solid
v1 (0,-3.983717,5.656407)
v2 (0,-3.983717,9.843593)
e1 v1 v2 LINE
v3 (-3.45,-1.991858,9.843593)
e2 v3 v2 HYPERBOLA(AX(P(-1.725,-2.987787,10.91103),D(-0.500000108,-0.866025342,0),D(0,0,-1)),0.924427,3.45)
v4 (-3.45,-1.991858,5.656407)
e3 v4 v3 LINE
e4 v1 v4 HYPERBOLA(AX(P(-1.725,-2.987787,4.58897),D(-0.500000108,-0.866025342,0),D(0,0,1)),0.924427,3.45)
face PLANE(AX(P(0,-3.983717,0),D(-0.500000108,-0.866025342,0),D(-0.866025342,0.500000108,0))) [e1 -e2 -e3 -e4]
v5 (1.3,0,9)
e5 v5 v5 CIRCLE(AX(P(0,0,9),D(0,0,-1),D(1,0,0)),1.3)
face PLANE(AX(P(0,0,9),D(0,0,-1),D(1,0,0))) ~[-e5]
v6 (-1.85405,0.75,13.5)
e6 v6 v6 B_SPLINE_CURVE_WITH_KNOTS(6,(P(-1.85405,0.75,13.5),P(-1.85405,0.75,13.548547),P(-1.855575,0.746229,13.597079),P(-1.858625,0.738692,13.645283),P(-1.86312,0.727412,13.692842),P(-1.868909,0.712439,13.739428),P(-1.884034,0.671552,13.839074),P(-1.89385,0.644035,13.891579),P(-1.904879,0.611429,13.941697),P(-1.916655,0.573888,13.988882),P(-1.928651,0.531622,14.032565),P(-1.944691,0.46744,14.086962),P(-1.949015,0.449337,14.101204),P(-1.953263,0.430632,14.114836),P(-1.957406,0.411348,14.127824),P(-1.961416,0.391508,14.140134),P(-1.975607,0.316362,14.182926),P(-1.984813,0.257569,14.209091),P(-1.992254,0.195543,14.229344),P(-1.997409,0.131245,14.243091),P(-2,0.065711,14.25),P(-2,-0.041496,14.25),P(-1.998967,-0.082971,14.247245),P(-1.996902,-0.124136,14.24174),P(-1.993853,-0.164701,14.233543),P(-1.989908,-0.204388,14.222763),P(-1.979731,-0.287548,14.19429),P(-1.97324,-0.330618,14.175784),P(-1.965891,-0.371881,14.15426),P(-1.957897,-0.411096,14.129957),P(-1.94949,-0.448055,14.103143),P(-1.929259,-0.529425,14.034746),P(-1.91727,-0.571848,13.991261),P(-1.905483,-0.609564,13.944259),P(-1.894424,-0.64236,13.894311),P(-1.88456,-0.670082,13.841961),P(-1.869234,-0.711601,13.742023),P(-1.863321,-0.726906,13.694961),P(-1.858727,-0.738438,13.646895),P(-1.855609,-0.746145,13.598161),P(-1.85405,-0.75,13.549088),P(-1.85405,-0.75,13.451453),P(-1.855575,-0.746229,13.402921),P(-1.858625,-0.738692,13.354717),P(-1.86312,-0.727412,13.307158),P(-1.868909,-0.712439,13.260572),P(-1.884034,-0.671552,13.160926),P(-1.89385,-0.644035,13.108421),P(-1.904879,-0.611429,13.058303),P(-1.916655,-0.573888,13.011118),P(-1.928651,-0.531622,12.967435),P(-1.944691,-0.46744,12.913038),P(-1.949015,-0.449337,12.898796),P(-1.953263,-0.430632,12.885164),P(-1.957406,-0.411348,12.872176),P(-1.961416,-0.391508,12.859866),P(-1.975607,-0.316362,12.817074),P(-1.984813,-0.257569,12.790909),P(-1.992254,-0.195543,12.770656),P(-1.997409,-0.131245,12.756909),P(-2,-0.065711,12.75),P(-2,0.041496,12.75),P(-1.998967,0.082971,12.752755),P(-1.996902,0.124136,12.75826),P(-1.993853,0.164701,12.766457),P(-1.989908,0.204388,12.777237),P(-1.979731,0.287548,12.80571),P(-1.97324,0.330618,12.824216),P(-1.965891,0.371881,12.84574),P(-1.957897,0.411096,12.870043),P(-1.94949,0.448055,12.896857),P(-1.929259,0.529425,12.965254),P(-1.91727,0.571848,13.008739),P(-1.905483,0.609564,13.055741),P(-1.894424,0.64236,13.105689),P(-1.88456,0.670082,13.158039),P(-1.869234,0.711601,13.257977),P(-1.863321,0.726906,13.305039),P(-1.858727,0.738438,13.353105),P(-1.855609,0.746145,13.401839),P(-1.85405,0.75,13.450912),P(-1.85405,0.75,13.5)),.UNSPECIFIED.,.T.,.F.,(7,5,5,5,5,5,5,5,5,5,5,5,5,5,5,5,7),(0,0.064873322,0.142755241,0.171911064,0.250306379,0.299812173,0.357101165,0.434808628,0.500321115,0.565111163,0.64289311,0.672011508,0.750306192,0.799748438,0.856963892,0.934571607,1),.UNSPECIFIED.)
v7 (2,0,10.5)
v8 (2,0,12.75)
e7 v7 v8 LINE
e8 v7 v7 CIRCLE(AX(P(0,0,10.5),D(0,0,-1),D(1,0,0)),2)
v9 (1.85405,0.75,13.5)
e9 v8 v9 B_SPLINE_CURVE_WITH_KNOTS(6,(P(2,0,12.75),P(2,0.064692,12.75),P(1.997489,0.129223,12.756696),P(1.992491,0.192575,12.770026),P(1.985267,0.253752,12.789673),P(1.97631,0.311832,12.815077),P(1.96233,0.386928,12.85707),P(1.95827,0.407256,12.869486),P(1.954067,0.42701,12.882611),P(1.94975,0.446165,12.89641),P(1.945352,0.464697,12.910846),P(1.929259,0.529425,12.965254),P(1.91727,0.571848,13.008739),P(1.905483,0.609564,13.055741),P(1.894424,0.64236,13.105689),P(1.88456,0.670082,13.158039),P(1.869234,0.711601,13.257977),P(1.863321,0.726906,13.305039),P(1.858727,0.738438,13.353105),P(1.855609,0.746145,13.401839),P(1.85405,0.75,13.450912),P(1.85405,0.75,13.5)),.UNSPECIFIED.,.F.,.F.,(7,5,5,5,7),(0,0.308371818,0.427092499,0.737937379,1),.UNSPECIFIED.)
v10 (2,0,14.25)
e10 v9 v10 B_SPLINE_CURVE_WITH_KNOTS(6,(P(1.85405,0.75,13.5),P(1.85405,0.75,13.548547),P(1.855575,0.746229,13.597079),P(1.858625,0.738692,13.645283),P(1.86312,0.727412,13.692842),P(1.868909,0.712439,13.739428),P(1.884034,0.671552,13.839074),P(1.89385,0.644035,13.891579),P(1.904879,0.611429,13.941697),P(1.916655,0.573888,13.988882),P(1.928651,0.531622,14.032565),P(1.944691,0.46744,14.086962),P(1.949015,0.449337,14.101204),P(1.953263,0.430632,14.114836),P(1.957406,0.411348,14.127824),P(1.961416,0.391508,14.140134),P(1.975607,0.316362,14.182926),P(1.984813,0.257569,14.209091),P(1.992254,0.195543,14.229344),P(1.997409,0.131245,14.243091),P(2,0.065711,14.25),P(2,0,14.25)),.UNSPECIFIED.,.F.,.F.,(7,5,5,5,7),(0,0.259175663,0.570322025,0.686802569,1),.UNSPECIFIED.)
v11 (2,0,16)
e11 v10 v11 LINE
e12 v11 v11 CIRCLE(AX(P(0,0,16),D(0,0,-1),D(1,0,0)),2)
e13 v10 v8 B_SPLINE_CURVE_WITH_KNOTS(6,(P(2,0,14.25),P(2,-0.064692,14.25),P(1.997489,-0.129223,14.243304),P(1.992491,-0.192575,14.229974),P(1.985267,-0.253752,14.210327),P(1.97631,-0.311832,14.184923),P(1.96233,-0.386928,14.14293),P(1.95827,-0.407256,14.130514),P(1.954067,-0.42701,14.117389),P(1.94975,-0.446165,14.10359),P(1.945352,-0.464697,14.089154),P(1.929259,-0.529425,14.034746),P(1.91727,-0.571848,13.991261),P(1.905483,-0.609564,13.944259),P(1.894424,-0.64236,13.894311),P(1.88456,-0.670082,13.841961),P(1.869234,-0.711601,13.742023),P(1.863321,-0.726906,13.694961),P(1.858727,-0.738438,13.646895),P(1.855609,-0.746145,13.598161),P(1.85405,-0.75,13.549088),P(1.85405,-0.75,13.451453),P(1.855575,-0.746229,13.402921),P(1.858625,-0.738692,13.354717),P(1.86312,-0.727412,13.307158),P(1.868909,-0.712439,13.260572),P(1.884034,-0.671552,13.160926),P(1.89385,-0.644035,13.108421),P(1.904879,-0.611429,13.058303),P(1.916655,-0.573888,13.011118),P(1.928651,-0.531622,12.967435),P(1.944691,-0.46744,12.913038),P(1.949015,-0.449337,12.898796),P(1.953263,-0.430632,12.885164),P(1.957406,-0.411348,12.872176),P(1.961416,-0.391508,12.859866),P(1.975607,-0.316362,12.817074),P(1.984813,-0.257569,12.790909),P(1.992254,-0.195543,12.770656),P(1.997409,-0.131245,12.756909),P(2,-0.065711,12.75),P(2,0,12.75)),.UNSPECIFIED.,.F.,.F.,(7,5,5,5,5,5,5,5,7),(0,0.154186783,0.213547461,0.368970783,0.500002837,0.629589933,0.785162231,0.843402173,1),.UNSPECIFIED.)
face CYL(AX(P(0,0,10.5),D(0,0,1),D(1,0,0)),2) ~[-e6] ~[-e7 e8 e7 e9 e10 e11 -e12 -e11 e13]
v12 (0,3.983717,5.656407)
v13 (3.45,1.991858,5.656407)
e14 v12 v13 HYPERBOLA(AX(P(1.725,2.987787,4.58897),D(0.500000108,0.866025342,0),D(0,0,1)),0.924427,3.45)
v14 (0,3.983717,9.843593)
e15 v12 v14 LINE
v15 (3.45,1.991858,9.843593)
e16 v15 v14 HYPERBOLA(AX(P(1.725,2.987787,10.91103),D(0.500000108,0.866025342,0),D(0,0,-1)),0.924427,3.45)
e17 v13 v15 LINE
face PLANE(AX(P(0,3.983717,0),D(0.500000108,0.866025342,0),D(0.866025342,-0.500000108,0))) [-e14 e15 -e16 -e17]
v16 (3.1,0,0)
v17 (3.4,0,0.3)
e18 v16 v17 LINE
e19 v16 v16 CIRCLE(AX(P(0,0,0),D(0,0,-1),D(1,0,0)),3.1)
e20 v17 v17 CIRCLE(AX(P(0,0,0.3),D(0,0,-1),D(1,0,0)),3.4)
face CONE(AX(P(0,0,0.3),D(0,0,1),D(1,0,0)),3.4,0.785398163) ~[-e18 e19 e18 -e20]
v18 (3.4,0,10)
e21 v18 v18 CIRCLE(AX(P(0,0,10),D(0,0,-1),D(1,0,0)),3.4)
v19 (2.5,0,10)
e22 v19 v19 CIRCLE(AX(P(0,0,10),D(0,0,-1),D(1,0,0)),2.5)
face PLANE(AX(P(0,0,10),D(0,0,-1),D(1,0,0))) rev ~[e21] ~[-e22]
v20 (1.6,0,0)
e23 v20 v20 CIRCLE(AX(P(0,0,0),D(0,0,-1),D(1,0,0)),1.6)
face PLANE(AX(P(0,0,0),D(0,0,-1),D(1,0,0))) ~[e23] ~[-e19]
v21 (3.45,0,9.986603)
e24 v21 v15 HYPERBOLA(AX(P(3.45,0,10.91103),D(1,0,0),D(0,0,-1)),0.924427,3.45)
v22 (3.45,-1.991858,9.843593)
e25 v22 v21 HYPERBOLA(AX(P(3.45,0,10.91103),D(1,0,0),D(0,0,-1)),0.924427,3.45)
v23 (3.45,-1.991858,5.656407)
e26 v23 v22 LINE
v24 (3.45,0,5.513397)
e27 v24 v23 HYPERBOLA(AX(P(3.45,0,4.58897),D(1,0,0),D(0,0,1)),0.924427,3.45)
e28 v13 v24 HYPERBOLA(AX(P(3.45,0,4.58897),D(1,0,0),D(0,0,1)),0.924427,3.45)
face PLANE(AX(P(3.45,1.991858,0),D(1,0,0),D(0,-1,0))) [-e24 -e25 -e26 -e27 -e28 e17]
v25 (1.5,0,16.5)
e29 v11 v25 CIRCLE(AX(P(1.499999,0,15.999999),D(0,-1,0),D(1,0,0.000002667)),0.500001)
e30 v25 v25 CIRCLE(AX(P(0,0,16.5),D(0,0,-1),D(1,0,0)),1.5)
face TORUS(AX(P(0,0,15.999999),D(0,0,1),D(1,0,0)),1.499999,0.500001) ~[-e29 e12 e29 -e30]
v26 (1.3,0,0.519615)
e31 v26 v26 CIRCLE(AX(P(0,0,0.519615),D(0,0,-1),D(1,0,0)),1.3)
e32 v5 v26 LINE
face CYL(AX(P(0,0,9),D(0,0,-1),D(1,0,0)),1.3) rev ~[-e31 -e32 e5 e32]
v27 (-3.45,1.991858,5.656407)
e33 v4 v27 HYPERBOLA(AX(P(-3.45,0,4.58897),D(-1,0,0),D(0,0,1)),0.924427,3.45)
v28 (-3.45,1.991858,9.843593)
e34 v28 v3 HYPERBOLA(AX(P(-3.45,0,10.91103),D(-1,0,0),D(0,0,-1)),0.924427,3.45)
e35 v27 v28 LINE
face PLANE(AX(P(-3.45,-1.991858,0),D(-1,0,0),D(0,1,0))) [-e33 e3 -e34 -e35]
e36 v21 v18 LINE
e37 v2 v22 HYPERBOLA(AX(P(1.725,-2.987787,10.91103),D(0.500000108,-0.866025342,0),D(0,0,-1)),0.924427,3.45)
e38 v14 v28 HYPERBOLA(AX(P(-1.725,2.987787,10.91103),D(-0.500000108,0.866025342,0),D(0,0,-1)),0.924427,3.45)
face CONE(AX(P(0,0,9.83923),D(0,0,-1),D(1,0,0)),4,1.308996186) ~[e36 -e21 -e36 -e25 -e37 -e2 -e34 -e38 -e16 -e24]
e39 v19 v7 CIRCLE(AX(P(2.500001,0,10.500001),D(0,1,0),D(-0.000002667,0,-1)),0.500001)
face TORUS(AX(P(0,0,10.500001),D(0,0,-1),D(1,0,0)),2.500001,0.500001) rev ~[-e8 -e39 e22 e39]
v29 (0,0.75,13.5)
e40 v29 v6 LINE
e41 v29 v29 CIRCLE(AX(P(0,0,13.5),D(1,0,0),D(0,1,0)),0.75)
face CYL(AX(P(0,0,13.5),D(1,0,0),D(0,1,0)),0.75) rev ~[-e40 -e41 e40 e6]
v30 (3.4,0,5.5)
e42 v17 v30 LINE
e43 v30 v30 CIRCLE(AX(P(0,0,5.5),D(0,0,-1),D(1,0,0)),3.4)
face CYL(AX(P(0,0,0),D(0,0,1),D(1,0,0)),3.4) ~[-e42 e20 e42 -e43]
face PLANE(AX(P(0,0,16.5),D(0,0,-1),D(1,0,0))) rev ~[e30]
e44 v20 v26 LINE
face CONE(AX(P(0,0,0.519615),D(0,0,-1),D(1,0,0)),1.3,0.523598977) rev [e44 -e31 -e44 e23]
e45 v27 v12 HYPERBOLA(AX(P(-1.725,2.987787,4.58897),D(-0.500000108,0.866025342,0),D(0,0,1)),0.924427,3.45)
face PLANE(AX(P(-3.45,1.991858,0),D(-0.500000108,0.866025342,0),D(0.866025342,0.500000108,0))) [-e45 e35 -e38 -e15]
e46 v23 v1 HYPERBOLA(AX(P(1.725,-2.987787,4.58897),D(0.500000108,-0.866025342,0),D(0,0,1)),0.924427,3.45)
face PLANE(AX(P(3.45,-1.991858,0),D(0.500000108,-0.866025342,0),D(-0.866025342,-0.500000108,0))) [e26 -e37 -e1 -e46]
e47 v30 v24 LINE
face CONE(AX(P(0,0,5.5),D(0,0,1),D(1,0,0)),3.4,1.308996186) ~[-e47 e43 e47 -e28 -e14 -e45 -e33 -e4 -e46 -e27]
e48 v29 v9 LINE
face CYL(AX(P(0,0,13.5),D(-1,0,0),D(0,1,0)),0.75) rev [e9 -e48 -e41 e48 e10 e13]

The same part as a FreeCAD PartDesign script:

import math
import FreeCAD as App
import Part
import Sketcher
Q = App.Units.Quantity


def edges_at(feature, points):
    """Names of the edges that pass closest to the given points."""
    edges = feature.Shape.Edges
    near = lambda p: min(range(len(edges)), key=lambda i: edges[i].distToShape(Part.Vertex(*p))[0])
    return sorted({f"Edge{near(p) + 1}" for p in points})

doc = App.newDocument("Part")
body = doc.addObject("PartDesign::Body", "Body")

sketch1 = body.newObject("Sketcher::SketchObject", "Sketch")
sketch1.AttachmentSupport = (doc.getObject("XZ_Plane"), [""])
sketch1.MapMode = "FlatFace"
sketch1.addGeometry([
    Part.LineSegment(App.Vector(1.3, 9, 0), App.Vector(1.3, 0, 0)),
    Part.LineSegment(App.Vector(1.3, 0, 0), App.Vector(3.4, 0, 0)),
    Part.LineSegment(App.Vector(3.4, 0, 0), App.Vector(3.4, 5.5, 0)),
    Part.LineSegment(App.Vector(3.4, 5.5, 0), App.Vector(4, 5.7, 0)),
    Part.LineSegment(App.Vector(4, 5.7, 0), App.Vector(4, 9.8, 0)),
    Part.LineSegment(App.Vector(4, 9.8, 0), App.Vector(3.4, 10, 0)),
    Part.LineSegment(App.Vector(3.4, 10, 0), App.Vector(2.5, 10, 0)),
    Part.ArcOfCircle(Part.Circle(App.Vector(2.5, 10.5, 0), App.Vector(0, 0, 1), 0.5), math.radians(-180), math.radians(-90)),
    Part.LineSegment(App.Vector(2, 10.5, 0), App.Vector(2, 16, 0)),
    Part.ArcOfCircle(Part.Circle(App.Vector(1.5, 16, 0), App.Vector(0, 0, 1), 0.5), math.radians(0), math.radians(90)),
    Part.LineSegment(App.Vector(1.5, 16.5, 0), App.Vector(0, 16.5, 0)),
    Part.LineSegment(App.Vector(0, 16.5, 0), App.Vector(0, 9, 0)),
    Part.LineSegment(App.Vector(0, 9, 0), App.Vector(1.3, 9, 0)),
], False)
sketch1.addConstraint([
    Sketcher.Constraint("Coincident", 0, 2, 1, 1),
    Sketcher.Constraint("Coincident", 1, 2, 2, 1),
    Sketcher.Constraint("Coincident", 2, 2, 3, 1),
    Sketcher.Constraint("Coincident", 3, 2, 4, 1),
    Sketcher.Constraint("Coincident", 4, 2, 5, 1),
    Sketcher.Constraint("Coincident", 5, 2, 6, 1),
    Sketcher.Constraint("Coincident", 6, 2, 7, 2),
    Sketcher.Constraint("Coincident", 7, 1, 8, 1),
    Sketcher.Constraint("Coincident", 8, 2, 9, 1),
    Sketcher.Constraint("Coincident", 9, 2, 10, 1),
    Sketcher.Constraint("Coincident", 10, 2, 11, 1),
    Sketcher.Constraint("Coincident", 11, 2, 12, 1),
    Sketcher.Constraint("Coincident", 12, 2, 0, 1),
    Sketcher.Constraint("Vertical", 0),
    Sketcher.Constraint("Horizontal", 1),
    Sketcher.Constraint("Vertical", 2),
    Sketcher.Constraint("Vertical", 4),
    Sketcher.Constraint("Horizontal", 6),
    Sketcher.Constraint("Vertical", 8),
    Sketcher.Constraint("Horizontal", 10),
    Sketcher.Constraint("Vertical", 11),
    Sketcher.Constraint("Horizontal", 12),
    Sketcher.Constraint("Equal", 7, 9),
    Sketcher.Constraint("PointOnObject", 0, 2, -1),
    Sketcher.Constraint("PointOnObject", 10, 2, -2),
    Sketcher.Constraint("Horizontal", 9, 3, 8, 2),
    Sketcher.Constraint("Vertical", 2, 2, 5, 2),
    Sketcher.Constraint("Vertical", 7, 3, 6, 2),
    Sketcher.Constraint("Equal", 2, 8),
    Sketcher.Constraint("Equal", 3, 5),
    Sketcher.Constraint("Radius", 7, Q("0.500001 mm")),
    Sketcher.Constraint("DistanceY", 0, 2, 0, 1, Q("9 mm")),
    Sketcher.Constraint("DistanceX", 1, 1, 1, 2, Q("2.1 mm")),
    Sketcher.Constraint("DistanceX", 6, 2, 6, 1, Q("0.9 mm")),
    Sketcher.Constraint("DistanceX", 10, 2, 10, 1, Q("1.5 mm")),
    Sketcher.Constraint("DistanceX", 12, 1, 12, 2, Q("1.3 mm")),
    Sketcher.Constraint("DistanceY", 2, 1, 2, 2, Q("5.5 mm")),
    Sketcher.Constraint("DistanceY", 11, 2, 11, 1, Q("7.5 mm")),
    Sketcher.Constraint("DistanceX", -1, 1, 3, 2, Q("4 mm")),
    Sketcher.Constraint("DistanceY", -1, 1, 5, 2, Q("10 mm")),
    Sketcher.Constraint("DistanceY", 4, 1, 4, 2, Q("4.17846 mm")),
])
revolution = body.newObject("PartDesign::Revolution", "Revolution")
revolution.Profile = sketch1
revolution.ReferenceAxis = (sketch1, ["V_Axis"])
revolution.Angle = 360

sketch2 = body.newObject("Sketcher::SketchObject", "Sketch001")
sketch2.AttachmentSupport = (doc.getObject("XY_Plane"), [""])
sketch2.MapMode = "FlatFace"
sketch2.addGeometry([
    Part.Circle(App.Vector(0, -0.6, 0), App.Vector(0, 0, 1), 5.9),
    Part.LineSegment(App.Vector(-3.5, 2, 0), App.Vector(0, 4, 0)),
    Part.LineSegment(App.Vector(0, 4, 0), App.Vector(3.5, 2, 0)),
    Part.LineSegment(App.Vector(3.5, 2, 0), App.Vector(3.5, -2, 0)),
    Part.LineSegment(App.Vector(3.5, -2, 0), App.Vector(0, -4, 0)),
    Part.LineSegment(App.Vector(0, -4, 0), App.Vector(-3.5, -2, 0)),
    Part.LineSegment(App.Vector(-3.5, -2, 0), App.Vector(-3.5, 2, 0)),
], False)
sketch2.addConstraint([
    Sketcher.Constraint("Coincident", 1, 2, 2, 1),
    Sketcher.Constraint("Coincident", 2, 2, 3, 1),
    Sketcher.Constraint("Coincident", 3, 2, 4, 1),
    Sketcher.Constraint("Coincident", 4, 2, 5, 1),
    Sketcher.Constraint("Coincident", 5, 2, 6, 1),
    Sketcher.Constraint("Coincident", 6, 2, 1, 1),
    Sketcher.Constraint("Vertical", 3),
    Sketcher.Constraint("Vertical", 6),
    Sketcher.Constraint("Symmetric", 1, 2, 4, 2, -1, 1),
    Sketcher.Constraint("Symmetric", 2, 2, 5, 2, -1, 1),
    Sketcher.Constraint("PointOnObject", 0, 3, -2),
    Sketcher.Constraint("PointOnObject", 1, 2, -2),
    Sketcher.Constraint("Parallel", 1, 4),
    Sketcher.Constraint("Horizontal", 3, 2, 5, 2),
    Sketcher.Constraint("Angle", 1, Q("30.000007 deg")),
    Sketcher.Constraint("DistanceX", 5, 2, 3, 2, Q("6.9 mm")),
    Sketcher.Constraint("Diameter", 0, Q("11.88341 mm")),
    Sketcher.Constraint("DistanceY", 0, 3, 1, 2, Q("4.6062 mm")),
    Sketcher.Constraint("DistanceY", 3, 2, 3, 1, Q("3.983716 mm")),
])
pocket1 = body.newObject("PartDesign::Pocket", "Pocket")
pocket1.Profile = sketch2
pocket1.Type = "ThroughAll"
pocket1.Reversed = True

sketch3 = body.newObject("Sketcher::SketchObject", "Sketch002")
sketch3.AttachmentSupport = (doc.getObject("YZ_Plane"), [""])
sketch3.MapMode = "FlatFace"
sketch3.addGeometry(Part.Circle(App.Vector(0, 13.5, 0), App.Vector(0, 0, 1), 0.8), False)
sketch3.addConstraint([
    Sketcher.Constraint("PointOnObject", 0, 3, -2),
    Sketcher.Constraint("Diameter", 0, Q("1.5 mm")),
    Sketcher.Constraint("DistanceY", -1, 1, 0, 3, Q("13.5 mm")),
])
pocket2 = body.newObject("PartDesign::Pocket", "Pocket001")
pocket2.Profile = sketch3
pocket2.Type = "ThroughAll"
pocket2.Midplane = True
doc.recompute()

chamfer = body.newObject("PartDesign::Chamfer", "Chamfer")
chamfer.Base = (pocket2, edges_at(pocket2, [(-3.4, 0, 0)]))
chamfer.Size = 0.3
doc.recompute()

chamfer2 = body.newObject("PartDesign::Chamfer", "Chamfer001")
chamfer2.Base = (chamfer, edges_at(chamfer, [(-1.3, 0, 0)]))
chamfer2.ChamferType = "Two distances"
chamfer2.Size = 0.3
chamfer2.Size2 = 0.519615

doc.recompute()
